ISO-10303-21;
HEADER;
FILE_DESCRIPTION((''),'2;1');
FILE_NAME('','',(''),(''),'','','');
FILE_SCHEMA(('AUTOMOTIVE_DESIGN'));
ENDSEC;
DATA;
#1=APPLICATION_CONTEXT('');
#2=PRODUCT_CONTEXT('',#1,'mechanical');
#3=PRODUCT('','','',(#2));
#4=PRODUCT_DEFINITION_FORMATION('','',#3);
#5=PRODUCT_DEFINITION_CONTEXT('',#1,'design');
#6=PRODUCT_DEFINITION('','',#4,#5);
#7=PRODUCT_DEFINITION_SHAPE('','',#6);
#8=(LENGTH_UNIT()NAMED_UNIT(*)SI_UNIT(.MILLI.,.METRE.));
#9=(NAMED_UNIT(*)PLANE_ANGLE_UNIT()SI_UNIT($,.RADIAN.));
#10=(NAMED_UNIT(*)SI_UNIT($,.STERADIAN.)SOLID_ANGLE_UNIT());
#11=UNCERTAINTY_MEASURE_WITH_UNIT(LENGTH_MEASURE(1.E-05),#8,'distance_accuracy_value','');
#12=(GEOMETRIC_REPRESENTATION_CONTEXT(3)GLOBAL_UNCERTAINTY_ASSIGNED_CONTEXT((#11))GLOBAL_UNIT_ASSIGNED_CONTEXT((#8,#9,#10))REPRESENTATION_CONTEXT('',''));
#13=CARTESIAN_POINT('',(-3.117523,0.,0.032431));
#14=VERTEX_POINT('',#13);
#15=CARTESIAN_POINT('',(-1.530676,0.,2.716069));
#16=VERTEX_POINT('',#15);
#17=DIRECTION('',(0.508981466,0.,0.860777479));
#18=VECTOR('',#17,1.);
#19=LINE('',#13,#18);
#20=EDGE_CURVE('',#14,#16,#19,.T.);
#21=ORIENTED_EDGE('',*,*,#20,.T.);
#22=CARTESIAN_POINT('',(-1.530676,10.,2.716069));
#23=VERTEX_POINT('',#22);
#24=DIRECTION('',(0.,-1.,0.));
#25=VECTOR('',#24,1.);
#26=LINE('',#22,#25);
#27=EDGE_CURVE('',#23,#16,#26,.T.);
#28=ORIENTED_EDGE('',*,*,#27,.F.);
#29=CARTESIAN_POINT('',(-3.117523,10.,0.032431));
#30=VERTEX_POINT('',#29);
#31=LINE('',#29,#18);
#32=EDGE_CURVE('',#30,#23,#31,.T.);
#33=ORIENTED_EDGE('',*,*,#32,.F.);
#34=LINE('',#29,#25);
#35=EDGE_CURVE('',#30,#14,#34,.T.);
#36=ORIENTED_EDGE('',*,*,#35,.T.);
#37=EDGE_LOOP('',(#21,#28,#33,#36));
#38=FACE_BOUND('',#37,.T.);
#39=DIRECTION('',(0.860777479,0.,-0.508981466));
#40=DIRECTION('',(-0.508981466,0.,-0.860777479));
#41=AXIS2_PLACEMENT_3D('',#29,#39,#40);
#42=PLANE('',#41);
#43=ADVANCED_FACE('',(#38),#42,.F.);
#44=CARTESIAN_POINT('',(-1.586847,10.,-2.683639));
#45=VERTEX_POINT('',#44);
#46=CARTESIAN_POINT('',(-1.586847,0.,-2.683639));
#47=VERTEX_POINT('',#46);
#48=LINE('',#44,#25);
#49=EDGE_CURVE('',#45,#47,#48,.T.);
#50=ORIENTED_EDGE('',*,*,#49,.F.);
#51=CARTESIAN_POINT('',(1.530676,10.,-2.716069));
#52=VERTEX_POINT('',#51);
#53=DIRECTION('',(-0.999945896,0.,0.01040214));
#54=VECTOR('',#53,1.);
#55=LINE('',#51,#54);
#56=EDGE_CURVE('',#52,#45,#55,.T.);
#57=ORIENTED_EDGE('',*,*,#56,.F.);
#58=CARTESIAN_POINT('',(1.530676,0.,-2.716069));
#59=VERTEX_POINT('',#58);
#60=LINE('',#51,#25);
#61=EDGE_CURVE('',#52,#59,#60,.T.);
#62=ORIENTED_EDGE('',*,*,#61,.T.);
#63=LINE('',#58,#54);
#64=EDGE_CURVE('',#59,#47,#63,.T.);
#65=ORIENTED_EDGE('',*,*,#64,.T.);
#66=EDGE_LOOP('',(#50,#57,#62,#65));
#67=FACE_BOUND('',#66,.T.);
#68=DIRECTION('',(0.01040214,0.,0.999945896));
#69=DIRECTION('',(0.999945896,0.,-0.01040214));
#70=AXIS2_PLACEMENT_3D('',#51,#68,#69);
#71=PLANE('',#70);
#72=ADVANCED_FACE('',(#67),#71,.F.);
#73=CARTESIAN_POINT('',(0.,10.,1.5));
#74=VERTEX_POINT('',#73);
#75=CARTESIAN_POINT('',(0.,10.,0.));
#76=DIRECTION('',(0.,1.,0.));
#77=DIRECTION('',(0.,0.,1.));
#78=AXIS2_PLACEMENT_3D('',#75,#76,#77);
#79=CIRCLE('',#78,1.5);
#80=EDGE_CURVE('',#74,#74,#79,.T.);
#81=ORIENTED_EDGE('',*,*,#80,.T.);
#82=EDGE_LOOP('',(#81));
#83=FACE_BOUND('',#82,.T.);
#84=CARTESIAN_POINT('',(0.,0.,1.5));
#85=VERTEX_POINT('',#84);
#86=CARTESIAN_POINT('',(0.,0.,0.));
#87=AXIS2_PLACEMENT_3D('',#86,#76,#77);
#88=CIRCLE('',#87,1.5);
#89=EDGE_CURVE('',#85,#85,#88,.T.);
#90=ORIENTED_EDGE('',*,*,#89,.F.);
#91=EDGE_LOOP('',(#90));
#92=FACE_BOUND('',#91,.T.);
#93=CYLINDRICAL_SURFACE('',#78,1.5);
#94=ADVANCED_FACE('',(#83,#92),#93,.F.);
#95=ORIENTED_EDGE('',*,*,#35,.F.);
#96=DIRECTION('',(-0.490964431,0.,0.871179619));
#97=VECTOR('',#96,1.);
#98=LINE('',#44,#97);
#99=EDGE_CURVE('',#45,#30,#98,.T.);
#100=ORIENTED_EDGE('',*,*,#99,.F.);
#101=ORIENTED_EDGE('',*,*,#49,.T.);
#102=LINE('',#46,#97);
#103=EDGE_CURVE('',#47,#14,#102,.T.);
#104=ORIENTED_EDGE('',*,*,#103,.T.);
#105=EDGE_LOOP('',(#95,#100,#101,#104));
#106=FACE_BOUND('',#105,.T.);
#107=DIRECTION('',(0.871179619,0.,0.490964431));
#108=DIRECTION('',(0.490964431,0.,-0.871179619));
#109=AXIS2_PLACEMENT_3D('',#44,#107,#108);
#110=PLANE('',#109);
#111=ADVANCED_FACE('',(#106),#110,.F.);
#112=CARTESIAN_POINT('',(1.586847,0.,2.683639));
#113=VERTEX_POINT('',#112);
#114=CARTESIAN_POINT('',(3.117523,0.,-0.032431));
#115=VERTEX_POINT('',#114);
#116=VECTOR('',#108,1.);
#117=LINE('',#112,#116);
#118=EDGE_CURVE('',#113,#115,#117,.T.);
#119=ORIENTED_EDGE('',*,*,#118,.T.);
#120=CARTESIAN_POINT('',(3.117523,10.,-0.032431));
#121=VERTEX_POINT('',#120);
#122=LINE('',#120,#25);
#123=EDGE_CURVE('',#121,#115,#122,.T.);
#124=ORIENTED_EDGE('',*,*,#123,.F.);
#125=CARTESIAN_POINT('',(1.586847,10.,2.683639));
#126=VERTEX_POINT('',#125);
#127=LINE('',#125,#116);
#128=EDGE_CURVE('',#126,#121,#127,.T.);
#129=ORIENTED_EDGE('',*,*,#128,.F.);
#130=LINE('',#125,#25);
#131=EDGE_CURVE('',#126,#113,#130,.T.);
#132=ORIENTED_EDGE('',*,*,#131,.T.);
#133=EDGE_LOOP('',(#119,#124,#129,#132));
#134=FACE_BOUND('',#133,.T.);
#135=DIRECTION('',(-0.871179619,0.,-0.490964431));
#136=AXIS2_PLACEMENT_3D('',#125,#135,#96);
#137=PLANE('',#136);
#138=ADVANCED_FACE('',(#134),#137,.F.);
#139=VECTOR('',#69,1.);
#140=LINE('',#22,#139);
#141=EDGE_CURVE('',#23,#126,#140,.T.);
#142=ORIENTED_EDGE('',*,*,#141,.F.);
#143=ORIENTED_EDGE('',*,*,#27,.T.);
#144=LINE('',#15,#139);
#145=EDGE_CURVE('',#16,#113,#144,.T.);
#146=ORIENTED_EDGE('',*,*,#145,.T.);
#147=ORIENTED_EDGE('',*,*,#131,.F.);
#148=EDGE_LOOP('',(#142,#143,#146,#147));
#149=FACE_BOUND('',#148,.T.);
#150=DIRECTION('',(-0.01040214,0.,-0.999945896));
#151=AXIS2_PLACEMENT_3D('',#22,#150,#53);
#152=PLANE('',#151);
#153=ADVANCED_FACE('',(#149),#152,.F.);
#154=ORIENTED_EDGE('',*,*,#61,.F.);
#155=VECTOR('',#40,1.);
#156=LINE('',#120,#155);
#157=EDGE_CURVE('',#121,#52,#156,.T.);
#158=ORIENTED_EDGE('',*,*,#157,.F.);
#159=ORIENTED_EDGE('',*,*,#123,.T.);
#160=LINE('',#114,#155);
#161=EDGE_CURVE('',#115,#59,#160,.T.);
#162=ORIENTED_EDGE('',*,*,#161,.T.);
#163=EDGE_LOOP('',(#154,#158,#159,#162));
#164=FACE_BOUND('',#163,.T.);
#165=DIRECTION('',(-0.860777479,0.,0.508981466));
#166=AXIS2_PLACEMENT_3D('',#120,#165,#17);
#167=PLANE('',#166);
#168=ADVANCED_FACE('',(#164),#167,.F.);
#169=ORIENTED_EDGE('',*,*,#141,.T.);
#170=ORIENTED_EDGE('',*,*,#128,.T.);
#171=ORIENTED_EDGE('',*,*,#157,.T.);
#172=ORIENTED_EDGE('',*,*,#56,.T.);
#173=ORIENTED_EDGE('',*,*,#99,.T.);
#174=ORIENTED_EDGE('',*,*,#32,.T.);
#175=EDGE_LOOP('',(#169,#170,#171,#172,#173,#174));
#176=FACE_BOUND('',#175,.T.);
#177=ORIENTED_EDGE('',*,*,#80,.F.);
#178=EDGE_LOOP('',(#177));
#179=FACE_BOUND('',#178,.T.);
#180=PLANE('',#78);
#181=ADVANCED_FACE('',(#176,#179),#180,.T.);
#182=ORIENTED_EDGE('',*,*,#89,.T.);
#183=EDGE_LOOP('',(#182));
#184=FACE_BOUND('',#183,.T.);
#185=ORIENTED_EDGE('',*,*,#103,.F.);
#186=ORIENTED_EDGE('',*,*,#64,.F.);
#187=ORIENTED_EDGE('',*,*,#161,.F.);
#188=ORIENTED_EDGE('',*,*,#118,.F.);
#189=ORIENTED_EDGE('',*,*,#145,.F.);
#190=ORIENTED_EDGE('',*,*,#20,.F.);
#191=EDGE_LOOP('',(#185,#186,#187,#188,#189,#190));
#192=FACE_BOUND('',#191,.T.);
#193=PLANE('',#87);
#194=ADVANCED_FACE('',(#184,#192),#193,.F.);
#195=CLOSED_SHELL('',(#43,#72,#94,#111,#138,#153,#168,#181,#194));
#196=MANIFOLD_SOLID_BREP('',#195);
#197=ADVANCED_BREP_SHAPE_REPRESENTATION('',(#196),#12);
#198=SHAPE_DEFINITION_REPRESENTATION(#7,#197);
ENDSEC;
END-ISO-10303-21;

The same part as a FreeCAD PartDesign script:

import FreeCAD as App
import Part
import Sketcher

V = App.Vector


def add_polygon(sketch, points):
    """Adds a closed chain of lines whose ends are joined by coincident constraints."""
    first, n = sketch.GeometryCount, len(points)
    for a, b in zip(points, points[1:] + points[:1]):
        sketch.addGeometry(Part.LineSegment(App.Vector(*a, 0), App.Vector(*b, 0)), False)
    for i in range(n):
        sketch.addConstraint(Sketcher.Constraint("Coincident", first + i, 2, first + (i + 1) % n, 1))

doc = App.newDocument("Part")
params = doc.addObject("Spreadsheet::Sheet", "Params")
for row, (alias, value) in enumerate([
    ("pad1_length", "10 mm"),
    ("sketch2_diameter", "3 mm"),
    ("hole_diameter", "3 mm"),
    ("hole_depth", "25.4 mm"),
], start=1):
    params.set(f"A{row}", alias)
    params.set(f"B{row}", "=" + value)
    params.setAlias(f"B{row}", alias)

body = doc.addObject("PartDesign::Body", "Body")

sketch1 = body.newObject("Sketcher::SketchObject", "Sketch")
sketch1.AttachmentSupport = (doc.getObject("XZ_Plane"), [""])
sketch1.MapMode = "FlatFace"
add_polygon(sketch1, [(-1.6, -2.7), (-3.1, 0), (-1.5, 2.7), (1.6, 2.7), (3.1, 0), (1.5, -2.7)])
sketch1.addConstraint([
    Sketcher.Constraint("Symmetric", 0, 2, 3, 2, -1, 1),
    Sketcher.Constraint("Symmetric", 1, 2, 4, 2, -1, 1),
    Sketcher.Constraint("Symmetric", 2, 2, 5, 2, -1, 1),
    Sketcher.Constraint("Equal", 0, 1),
    Sketcher.Constraint("Equal", 1, 2),
    Sketcher.Constraint("DistanceX", 1, 2, 3, 2, 4.648198),
    Sketcher.Constraint("DistanceY", 3, 2, 1, 2, 2.7485),
    Sketcher.Constraint("Distance", 0, 3.117691),
    Sketcher.Constraint("DistanceY", -1, 1, 0, 2, 0.032431),
])
pad1 = body.newObject("PartDesign::Pad", "Pad")
pad1.Profile = sketch1
pad1.setExpression("Length", "Params.pad1_length")
pad1.Reversed = True

sketch2 = body.newObject("Sketcher::SketchObject", "Sketch001")
sketch2.AttachmentSupport = (doc.getObject("XZ_Plane"), [""])
sketch2.MapMode = "FlatFace"
sketch2.AttachmentOffset = App.Placement(V(0, 0, -10), App.Rotation())
sketch2.addGeometry(Part.Circle(V(0, 0, 0), V(0, 0, 1), 1.5), False)
sketch2.addConstraint([
    Sketcher.Constraint("Coincident", 0, 3, -1, 1),
    Sketcher.Constraint("Diameter", 0, 3.0),
])
sketch2.setExpression("Constraints[1]", "Params.sketch2_diameter")
doc.recompute()
hole = body.newObject("PartDesign::Hole", "Hole")
hole.Profile = sketch2
hole.ThreadType = "None"
hole.setExpression("Diameter", "Params.hole_diameter")
hole.DepthType = "Dimension"
hole.setExpression("Depth", "Params.hole_depth")
hole.DrillPoint = "Angled"
hole.DrillPointAngle = 118
hole.Reversed = True

doc.recompute()
